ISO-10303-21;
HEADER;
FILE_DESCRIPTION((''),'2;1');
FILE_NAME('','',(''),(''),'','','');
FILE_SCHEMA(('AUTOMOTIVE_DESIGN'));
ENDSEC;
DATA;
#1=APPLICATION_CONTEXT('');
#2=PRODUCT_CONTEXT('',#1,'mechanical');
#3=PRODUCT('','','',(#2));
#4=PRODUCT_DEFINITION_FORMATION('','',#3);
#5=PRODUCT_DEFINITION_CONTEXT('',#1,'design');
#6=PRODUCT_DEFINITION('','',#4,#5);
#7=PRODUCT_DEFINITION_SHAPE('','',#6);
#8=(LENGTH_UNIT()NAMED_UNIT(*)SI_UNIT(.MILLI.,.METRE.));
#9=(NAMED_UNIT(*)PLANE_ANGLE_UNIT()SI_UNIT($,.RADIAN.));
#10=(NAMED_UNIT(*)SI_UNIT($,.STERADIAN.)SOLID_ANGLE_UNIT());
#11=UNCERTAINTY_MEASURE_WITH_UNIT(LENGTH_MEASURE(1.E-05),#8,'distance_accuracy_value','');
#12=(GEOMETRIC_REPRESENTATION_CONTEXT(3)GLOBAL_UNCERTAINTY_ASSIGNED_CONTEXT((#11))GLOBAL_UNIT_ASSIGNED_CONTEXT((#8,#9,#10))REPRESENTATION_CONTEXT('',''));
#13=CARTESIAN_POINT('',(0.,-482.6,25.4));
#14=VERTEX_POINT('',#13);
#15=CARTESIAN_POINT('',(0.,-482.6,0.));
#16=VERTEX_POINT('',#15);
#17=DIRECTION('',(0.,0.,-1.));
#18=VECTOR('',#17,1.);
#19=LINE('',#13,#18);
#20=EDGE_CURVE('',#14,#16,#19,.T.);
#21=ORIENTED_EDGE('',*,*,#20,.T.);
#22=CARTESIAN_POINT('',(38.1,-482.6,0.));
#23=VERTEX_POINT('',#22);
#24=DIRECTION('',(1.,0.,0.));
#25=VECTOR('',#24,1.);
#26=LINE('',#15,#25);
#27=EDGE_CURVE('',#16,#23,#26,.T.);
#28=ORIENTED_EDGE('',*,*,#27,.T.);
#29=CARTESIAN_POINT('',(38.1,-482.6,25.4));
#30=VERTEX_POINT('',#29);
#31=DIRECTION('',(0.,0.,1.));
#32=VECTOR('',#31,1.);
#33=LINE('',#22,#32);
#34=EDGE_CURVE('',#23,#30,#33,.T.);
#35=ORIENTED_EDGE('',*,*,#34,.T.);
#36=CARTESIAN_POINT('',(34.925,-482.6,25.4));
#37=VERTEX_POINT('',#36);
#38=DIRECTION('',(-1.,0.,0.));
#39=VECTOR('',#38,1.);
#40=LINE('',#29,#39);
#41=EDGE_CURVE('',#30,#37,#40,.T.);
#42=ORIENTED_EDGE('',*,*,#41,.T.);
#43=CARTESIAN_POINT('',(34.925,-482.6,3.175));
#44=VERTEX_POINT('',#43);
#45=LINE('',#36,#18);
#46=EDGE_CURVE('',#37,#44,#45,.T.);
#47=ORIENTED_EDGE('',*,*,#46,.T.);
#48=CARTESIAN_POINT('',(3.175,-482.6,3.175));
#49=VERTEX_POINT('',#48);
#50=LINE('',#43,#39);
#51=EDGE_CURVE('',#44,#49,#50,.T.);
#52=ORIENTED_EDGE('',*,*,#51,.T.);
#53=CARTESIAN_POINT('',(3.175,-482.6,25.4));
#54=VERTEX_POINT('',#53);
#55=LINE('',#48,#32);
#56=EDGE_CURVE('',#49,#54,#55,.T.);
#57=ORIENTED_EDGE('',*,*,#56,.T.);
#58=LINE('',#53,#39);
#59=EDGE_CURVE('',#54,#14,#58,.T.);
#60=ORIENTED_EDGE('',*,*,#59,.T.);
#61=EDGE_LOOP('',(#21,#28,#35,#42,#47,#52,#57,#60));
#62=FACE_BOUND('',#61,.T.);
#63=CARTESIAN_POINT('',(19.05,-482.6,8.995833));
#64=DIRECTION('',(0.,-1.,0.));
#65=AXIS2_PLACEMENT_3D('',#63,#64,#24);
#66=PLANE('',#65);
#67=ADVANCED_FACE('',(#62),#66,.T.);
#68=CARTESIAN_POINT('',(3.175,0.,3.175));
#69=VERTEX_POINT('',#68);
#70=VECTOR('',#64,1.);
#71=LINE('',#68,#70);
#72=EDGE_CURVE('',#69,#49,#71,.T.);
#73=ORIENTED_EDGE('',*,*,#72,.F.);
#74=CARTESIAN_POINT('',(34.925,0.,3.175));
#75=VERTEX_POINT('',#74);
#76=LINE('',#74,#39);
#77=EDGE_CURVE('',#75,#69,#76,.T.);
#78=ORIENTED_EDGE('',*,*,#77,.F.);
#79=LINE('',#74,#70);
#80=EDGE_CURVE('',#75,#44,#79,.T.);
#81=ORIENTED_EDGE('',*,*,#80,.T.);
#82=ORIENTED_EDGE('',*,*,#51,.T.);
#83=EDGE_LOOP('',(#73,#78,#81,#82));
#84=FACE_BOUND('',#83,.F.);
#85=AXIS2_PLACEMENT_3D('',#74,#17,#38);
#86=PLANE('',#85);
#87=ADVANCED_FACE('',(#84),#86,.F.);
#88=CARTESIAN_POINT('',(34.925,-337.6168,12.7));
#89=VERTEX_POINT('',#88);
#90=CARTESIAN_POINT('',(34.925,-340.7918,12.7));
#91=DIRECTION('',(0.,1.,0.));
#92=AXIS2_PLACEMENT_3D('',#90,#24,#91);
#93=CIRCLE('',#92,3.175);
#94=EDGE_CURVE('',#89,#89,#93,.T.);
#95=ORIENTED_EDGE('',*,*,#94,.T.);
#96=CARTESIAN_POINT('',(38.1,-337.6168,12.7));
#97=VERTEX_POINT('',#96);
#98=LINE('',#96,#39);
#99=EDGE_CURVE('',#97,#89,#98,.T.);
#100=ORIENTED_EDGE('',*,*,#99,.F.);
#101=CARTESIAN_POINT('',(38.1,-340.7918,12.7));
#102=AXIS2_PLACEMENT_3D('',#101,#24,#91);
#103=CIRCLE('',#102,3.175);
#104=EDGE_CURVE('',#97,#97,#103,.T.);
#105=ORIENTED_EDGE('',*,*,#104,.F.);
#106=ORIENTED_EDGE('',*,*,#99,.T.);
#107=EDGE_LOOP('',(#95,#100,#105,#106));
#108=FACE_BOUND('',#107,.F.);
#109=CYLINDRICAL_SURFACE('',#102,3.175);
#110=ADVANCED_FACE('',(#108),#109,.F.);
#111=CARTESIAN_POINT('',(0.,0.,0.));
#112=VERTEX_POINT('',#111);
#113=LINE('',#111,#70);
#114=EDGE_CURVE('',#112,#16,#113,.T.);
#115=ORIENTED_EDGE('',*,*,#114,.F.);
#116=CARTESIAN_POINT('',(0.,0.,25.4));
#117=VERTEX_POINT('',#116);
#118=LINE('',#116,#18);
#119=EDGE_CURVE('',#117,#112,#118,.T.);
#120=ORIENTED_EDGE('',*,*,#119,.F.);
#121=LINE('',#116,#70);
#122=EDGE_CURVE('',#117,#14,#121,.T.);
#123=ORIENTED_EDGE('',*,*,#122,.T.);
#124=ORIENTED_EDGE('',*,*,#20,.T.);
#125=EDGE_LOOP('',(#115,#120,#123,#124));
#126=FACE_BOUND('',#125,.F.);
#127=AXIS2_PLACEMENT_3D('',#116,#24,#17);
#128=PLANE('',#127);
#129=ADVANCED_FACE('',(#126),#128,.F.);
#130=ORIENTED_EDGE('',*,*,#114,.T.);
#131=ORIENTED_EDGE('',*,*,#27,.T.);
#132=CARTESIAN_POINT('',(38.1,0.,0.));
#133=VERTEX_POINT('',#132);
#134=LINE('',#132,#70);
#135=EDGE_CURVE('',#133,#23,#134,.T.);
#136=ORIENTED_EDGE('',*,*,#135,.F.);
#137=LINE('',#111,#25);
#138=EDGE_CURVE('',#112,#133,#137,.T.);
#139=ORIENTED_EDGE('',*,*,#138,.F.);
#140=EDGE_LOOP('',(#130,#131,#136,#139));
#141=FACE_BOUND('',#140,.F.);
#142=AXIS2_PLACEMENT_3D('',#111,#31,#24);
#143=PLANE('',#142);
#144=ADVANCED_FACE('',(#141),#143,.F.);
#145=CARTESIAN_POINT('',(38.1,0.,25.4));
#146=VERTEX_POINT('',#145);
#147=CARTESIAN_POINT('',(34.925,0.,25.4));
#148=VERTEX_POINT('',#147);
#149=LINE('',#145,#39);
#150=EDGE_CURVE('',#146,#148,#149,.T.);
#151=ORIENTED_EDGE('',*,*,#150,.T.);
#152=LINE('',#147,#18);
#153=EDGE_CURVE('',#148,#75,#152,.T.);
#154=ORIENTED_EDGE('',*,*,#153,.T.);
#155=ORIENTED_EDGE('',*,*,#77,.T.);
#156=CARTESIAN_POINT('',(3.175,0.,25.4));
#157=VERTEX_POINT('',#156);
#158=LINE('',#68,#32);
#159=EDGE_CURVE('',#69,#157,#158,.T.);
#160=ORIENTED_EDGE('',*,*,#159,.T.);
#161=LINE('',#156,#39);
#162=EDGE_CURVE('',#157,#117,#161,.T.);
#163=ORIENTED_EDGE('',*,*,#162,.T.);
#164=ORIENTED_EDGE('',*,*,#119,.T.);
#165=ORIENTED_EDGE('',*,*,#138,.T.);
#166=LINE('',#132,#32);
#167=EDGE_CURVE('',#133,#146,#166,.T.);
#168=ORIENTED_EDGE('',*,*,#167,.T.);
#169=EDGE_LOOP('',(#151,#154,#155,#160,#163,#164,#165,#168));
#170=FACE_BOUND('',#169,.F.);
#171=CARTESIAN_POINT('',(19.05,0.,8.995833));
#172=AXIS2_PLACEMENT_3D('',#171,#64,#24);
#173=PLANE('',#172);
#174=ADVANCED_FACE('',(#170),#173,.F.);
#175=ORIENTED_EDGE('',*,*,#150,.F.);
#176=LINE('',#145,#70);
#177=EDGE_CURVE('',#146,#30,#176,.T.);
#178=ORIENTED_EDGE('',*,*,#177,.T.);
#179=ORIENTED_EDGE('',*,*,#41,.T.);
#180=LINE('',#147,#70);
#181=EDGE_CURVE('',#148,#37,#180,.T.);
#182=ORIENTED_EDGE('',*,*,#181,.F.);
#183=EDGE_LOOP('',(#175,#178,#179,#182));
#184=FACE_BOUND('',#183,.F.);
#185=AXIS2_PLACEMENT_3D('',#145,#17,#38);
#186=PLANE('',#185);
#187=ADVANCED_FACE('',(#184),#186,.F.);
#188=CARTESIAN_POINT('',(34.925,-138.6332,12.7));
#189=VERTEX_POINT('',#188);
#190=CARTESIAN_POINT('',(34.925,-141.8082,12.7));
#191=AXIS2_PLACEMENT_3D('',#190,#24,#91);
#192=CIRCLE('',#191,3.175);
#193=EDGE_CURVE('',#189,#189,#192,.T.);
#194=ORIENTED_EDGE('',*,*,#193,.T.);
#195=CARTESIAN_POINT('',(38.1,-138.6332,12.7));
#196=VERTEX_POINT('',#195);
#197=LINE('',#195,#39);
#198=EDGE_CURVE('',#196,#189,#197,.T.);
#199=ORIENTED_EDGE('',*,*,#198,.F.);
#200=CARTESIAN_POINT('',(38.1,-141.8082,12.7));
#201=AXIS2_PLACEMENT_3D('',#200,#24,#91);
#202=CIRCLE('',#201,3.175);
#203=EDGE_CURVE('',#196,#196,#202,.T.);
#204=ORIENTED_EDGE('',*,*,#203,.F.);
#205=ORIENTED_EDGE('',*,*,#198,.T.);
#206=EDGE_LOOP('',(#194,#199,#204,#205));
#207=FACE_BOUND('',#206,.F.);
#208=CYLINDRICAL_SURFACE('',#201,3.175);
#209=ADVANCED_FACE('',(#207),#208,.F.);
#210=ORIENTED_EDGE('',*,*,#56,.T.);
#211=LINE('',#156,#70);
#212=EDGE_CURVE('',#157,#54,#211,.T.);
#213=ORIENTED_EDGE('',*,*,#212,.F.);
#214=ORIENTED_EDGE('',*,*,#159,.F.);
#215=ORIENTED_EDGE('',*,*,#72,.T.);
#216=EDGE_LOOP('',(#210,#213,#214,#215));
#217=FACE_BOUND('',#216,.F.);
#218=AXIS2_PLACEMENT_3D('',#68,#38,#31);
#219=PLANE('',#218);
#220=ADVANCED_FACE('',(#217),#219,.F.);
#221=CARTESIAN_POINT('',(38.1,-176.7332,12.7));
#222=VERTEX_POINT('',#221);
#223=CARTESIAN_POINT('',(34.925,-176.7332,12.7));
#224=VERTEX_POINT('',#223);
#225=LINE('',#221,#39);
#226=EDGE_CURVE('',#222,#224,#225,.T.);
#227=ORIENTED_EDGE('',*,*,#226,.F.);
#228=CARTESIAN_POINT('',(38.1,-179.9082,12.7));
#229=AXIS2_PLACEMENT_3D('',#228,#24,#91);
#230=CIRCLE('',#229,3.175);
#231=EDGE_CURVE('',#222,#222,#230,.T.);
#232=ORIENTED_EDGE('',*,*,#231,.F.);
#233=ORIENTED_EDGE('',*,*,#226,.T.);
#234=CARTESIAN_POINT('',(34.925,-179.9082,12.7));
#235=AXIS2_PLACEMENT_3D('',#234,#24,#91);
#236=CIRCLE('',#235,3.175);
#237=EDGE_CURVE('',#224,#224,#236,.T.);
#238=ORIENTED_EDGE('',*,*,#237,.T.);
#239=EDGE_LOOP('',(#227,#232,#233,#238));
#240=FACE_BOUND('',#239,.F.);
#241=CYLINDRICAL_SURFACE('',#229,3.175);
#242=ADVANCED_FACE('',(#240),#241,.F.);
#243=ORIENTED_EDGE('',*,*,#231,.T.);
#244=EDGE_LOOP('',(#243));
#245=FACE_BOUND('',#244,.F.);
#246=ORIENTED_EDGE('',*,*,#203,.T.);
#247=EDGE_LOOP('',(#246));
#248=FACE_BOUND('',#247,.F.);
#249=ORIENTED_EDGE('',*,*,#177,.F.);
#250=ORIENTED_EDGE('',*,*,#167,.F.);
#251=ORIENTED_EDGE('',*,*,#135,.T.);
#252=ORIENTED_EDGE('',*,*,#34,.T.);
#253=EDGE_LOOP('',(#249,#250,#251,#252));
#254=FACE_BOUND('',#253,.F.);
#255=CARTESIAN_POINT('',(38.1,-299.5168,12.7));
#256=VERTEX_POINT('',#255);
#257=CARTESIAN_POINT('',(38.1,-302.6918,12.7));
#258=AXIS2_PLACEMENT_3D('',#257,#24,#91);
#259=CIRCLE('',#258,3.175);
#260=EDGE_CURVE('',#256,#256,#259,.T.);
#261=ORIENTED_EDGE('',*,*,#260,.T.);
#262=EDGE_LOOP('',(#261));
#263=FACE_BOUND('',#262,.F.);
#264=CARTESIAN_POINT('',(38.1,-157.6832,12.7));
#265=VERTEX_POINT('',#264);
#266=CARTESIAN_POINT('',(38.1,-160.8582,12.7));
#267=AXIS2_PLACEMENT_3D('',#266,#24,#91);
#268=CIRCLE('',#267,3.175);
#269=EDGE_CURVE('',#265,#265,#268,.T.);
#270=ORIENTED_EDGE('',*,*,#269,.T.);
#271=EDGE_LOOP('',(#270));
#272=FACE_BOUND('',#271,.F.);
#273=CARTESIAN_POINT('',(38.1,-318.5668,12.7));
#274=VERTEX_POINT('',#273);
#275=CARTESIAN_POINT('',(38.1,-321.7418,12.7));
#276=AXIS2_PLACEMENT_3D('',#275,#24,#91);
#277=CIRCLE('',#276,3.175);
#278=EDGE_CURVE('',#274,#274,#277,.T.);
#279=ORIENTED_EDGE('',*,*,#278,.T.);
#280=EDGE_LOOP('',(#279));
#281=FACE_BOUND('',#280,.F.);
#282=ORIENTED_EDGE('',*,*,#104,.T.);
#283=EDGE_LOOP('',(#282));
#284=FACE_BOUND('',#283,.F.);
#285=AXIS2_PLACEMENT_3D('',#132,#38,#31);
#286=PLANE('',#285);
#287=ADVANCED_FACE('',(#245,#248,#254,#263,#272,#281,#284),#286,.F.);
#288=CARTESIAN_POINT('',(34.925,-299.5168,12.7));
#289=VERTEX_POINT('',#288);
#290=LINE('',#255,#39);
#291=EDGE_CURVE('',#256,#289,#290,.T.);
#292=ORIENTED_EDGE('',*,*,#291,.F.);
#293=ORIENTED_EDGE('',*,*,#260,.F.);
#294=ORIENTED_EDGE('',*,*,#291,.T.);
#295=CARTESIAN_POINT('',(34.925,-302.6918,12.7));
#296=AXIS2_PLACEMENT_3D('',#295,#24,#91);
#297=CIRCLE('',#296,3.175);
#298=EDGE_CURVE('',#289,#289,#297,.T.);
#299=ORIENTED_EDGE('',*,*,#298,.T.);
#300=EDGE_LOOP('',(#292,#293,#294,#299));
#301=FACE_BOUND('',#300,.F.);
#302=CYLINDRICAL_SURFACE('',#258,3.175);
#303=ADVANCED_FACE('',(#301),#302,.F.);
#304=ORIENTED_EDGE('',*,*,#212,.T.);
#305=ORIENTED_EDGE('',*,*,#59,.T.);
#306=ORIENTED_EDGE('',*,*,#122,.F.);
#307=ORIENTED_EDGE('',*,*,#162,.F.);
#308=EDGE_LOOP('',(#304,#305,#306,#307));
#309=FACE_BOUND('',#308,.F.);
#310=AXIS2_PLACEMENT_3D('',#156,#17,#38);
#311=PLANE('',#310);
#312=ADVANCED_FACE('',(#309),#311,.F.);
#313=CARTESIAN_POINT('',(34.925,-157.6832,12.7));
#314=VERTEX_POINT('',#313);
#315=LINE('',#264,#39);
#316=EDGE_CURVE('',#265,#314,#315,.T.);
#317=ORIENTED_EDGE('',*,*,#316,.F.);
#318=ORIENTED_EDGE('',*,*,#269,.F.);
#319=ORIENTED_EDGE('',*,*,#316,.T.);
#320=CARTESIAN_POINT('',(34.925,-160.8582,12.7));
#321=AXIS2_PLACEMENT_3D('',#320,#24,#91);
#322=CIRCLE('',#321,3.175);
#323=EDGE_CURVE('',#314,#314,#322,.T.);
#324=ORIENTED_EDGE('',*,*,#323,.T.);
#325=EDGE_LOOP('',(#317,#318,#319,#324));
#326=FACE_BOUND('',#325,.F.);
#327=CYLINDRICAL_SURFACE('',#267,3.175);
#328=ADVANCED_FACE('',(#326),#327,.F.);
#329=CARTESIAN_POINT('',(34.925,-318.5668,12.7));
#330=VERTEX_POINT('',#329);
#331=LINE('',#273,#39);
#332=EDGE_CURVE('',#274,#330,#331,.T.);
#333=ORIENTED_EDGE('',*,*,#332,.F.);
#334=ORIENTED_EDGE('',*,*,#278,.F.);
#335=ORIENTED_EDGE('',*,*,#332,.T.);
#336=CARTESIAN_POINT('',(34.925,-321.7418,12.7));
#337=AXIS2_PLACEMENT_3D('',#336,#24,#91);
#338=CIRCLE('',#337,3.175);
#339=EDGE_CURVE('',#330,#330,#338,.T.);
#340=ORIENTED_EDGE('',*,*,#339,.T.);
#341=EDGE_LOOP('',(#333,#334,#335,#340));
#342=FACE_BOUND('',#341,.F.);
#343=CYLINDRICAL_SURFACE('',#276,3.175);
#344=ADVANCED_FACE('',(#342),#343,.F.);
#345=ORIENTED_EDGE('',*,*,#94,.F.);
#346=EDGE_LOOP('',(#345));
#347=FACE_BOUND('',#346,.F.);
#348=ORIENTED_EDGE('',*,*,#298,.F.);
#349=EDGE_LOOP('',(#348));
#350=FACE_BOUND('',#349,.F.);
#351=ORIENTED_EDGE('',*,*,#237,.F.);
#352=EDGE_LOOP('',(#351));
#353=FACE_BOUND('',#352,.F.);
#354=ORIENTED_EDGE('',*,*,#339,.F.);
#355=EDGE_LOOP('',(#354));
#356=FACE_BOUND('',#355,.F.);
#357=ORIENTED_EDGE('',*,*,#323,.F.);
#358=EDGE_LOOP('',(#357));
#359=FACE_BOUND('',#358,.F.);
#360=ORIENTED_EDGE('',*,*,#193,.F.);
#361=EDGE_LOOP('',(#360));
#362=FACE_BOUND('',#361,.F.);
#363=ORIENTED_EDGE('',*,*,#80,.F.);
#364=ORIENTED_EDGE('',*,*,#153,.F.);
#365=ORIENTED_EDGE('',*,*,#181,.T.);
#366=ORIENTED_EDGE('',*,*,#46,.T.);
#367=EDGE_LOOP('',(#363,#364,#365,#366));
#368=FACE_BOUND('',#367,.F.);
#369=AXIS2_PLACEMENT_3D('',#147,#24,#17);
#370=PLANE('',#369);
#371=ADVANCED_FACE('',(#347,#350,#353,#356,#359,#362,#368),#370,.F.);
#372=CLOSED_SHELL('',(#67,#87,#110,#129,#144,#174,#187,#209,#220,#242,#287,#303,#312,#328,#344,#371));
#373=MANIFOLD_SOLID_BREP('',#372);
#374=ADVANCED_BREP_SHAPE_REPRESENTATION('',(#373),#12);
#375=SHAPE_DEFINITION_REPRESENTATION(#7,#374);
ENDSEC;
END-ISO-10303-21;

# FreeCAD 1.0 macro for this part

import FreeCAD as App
import Part
import Sketcher
Q = App.Units.Quantity

doc = App.newDocument("Part")
params = doc.addObject("Spreadsheet::Sheet", "Params")
for row, (alias, value) in enumerate([
    ("sketch1_height", "1 in"),
    ("sketch1_width", "1.5 in"),
    ("sketch1_width2", "1.25 in"),
    ("sketch1_height2", "0.875 in"),
    ("pad1_length", "19 in"),
    ("sketch2_diameter", "0.25 in"),
    ("pocket1_length", "0.25 in"),
], start=1):
    params.set(f"A{row}", alias)
    params.set(f"B{row}", "=" + value)
    params.setAlias(f"B{row}", alias)

body = doc.addObject("PartDesign::Body", "Body")

# Sketch on XZ plane
sketch1 = body.newObject("Sketcher::SketchObject", "Sketch")
sketch1.AttachmentSupport = (doc.getObject("XZ_Plane"), [""])
sketch1.MapMode = "FlatFace"
sketch1.addGeometry(Part.LineSegment(App.Vector(0, 25.4, 0), App.Vector(0, 0, 0)), False)
sketch1.addGeometry(Part.LineSegment(App.Vector(0, 0, 0), App.Vector(38.1, 0, 0)), False)
sketch1.addGeometry(Part.LineSegment(App.Vector(38.1, 0, 0), App.Vector(38.1, 25.4, 0)), False)
sketch1.addGeometry(Part.LineSegment(App.Vector(38.1, 25.4, 0), App.Vector(34.9, 25.4, 0)), False)
sketch1.addGeometry(Part.LineSegment(App.Vector(34.9, 25.4, 0), App.Vector(34.9, 3.2, 0)), False)
sketch1.addGeometry(Part.LineSegment(App.Vector(34.9, 3.2, 0), App.Vector(3.2, 3.2, 0)), False)
sketch1.addGeometry(Part.LineSegment(App.Vector(3.2, 3.2, 0), App.Vector(3.2, 25.4, 0)), False)
sketch1.addGeometry(Part.LineSegment(App.Vector(3.2, 25.4, 0), App.Vector(0, 25.4, 0)), False)
sketch1.addConstraint(Sketcher.Constraint("Coincident", 0, 2, 1, 1))
sketch1.addConstraint(Sketcher.Constraint("Coincident", 1, 2, 2, 1))
sketch1.addConstraint(Sketcher.Constraint("Coincident", 2, 2, 3, 1))
sketch1.addConstraint(Sketcher.Constraint("Coincident", 3, 2, 4, 1))
sketch1.addConstraint(Sketcher.Constraint("Coincident", 4, 2, 5, 1))
sketch1.addConstraint(Sketcher.Constraint("Coincident", 5, 2, 6, 1))
sketch1.addConstraint(Sketcher.Constraint("Coincident", 6, 2, 7, 1))
sketch1.addConstraint(Sketcher.Constraint("Coincident", 7, 2, 0, 1))
sketch1.addConstraint(Sketcher.Constraint("Vertical", 0))
sketch1.addConstraint(Sketcher.Constraint("Horizontal", 1))
sketch1.addConstraint(Sketcher.Constraint("Vertical", 2))
sketch1.addConstraint(Sketcher.Constraint("Horizontal", 3))
sketch1.addConstraint(Sketcher.Constraint("Vertical", 4))
sketch1.addConstraint(Sketcher.Constraint("Horizontal", 5))
sketch1.addConstraint(Sketcher.Constraint("Vertical", 6))
sketch1.addConstraint(Sketcher.Constraint("Horizontal", 7))
sketch1.addConstraint(Sketcher.Constraint("Coincident", 0, 2, -1, 1))
sketch1.addConstraint(Sketcher.Constraint("Horizontal", 3, 2, 6, 2))
sketch1.addConstraint(Sketcher.Constraint("Equal", 3, 7))
sketch1.addConstraint(Sketcher.Constraint("DistanceY", 0, 2, 0, 1, Q("1 in")))
sketch1.addConstraint(Sketcher.Constraint("DistanceX", 1, 1, 1, 2, Q("1.5 in")))
sketch1.addConstraint(Sketcher.Constraint("DistanceX", 5, 2, 5, 1, Q("1.25 in")))
sketch1.addConstraint(Sketcher.Constraint("DistanceY", 4, 2, 4, 1, Q("0.875 in")))
sketch1.setExpression("Constraints[19]", "Params.sketch1_height")
sketch1.setExpression("Constraints[20]", "Params.sketch1_width")
sketch1.setExpression("Constraints[21]", "Params.sketch1_width2")
sketch1.setExpression("Constraints[22]", "Params.sketch1_height2")
pad1 = body.newObject("PartDesign::Pad", "Pad")
pad1.Profile = sketch1
pad1.setExpression("Length", "Params.pad1_length")

# Sketch on YZ plane
sketch2 = body.newObject("Sketcher::SketchObject", "Sketch001")
sketch2.AttachmentSupport = (doc.getObject("YZ_Plane"), [""])
sketch2.MapMode = "FlatFace"
sketch2.AttachmentOffset = App.Placement(App.Vector(0, 0, 1.5 * 25.4), App.Rotation())
sketch2.addGeometry(Part.Circle(App.Vector(-141.8, 12.7, 0), App.Vector(0, 0, 1), 3.2), False)
sketch2.addGeometry(Part.Circle(App.Vector(-160.9, 12.7, 0), App.Vector(0, 0, 1), 3.2), False)
sketch2.addGeometry(Part.Circle(App.Vector(-179.9, 12.7, 0), App.Vector(0, 0, 1), 3.2), False)
sketch2.addGeometry(Part.Circle(App.Vector(-302.7, 12.7, 0), App.Vector(0, 0, 1), 3.2), False)
sketch2.addGeometry(Part.Circle(App.Vector(-321.7, 12.7, 0), App.Vector(0, 0, 1), 3.2), False)
sketch2.addGeometry(Part.Circle(App.Vector(-340.8, 12.7, 0), App.Vector(0, 0, 1), 3.2), False)
sketch2.addConstraint(Sketcher.Constraint("Equal", 0, 1))
sketch2.addConstraint(Sketcher.Constraint("Equal", 1, 2))
sketch2.addConstraint(Sketcher.Constraint("Equal", 2, 3))
sketch2.addConstraint(Sketcher.Constraint("Equal", 3, 4))
sketch2.addConstraint(Sketcher.Constraint("Equal", 4, 5))
sketch2.addConstraint(Sketcher.Constraint("Horizontal", 0, 3, 1, 3))
sketch2.addConstraint(Sketcher.Constraint("Horizontal", 1, 3, 2, 3))
sketch2.addConstraint(Sketcher.Constraint("Horizontal", 2, 3, 3, 3))
sketch2.addConstraint(Sketcher.Constraint("Horizontal", 3, 3, 4, 3))
sketch2.addConstraint(Sketcher.Constraint("Horizontal", 4, 3, 5, 3))
sketch2.addConstraint(Sketcher.Constraint("Diameter", 0, Q("0.25 in")))
sketch2.addConstraint(Sketcher.Constraint("DistanceY", -1, 1, 0, 3, Q("0.5 in")))
sketch2.addConstraint(Sketcher.Constraint("DistanceX", 2, 3, 0, 3, Q("1.5 in")))
sketch2.addConstraint(Sketcher.Constraint("DistanceX", 5, 3, 3, 3, Q("1.5 in")))
sketch2.addConstraint(Sketcher.Constraint("DistanceX", 1, 3, 0, 3, Q("0.75 in")))
sketch2.addConstraint(Sketcher.Constraint("DistanceX", 4, 3, 3, 3, Q("0.75 in")))
sketch2.addConstraint(Sketcher.Constraint("DistanceX", 0, 3, -1, 1, Q("5.583 in")))
sketch2.addConstraint(Sketcher.Constraint("DistanceX", 3, 3, -1, 1, Q("11.917 in")))
sketch2.setExpression("Constraints[10]", "Params.sketch2_diameter")
pocket1 = body.newObject("PartDesign::Pocket", "Pocket")
pocket1.Profile = sketch2
pocket1.setExpression("Length", "Params.pocket1_length")

doc.recompute()
